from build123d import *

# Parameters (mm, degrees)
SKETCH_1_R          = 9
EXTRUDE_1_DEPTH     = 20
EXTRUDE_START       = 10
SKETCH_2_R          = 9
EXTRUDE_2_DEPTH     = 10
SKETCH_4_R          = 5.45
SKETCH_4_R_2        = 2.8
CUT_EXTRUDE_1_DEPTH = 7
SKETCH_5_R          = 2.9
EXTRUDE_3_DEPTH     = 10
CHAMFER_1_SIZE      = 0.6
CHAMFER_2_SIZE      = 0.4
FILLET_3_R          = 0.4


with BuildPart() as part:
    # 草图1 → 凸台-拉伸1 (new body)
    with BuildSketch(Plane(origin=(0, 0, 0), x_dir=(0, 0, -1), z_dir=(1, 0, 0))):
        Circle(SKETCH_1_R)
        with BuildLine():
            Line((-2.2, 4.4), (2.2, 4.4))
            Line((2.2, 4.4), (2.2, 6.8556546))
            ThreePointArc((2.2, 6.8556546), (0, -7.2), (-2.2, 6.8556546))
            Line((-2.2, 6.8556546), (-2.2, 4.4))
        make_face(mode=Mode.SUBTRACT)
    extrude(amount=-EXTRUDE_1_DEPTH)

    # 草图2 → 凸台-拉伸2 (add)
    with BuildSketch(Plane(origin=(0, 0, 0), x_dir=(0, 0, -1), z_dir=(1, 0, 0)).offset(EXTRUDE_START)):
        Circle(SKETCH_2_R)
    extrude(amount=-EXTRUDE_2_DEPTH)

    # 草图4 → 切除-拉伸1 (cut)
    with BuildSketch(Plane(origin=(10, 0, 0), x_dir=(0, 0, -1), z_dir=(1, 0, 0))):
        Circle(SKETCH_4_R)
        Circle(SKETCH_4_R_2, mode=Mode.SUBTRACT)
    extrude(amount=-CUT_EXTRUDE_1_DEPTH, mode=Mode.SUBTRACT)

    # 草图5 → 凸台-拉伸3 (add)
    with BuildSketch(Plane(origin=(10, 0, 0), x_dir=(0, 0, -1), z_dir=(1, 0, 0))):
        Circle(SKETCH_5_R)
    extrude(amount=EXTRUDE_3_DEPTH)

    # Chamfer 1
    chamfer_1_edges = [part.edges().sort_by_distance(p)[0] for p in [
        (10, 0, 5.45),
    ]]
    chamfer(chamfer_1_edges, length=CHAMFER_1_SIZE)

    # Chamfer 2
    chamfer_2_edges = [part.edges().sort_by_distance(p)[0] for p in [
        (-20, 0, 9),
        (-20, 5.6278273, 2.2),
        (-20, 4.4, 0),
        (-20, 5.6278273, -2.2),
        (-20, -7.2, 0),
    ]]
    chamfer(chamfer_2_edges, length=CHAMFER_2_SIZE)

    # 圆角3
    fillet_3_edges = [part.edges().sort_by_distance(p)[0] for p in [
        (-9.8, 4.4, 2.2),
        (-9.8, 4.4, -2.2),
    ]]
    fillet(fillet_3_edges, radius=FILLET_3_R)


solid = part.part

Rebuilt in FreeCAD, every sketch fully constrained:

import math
import FreeCAD as App
import Part
import Sketcher

V = App.Vector


def edges_at(feature, points):
    """Names of the edges that pass closest to the given points."""
    edges = feature.Shape.Edges
    near = lambda p: min(range(len(edges)), key=lambda i: edges[i].distToShape(Part.Vertex(*p))[0])
    return sorted({f"Edge{near(p) + 1}" for p in points})

doc = App.newDocument("Part")
params = doc.addObject("Spreadsheet::Sheet", "Params")
for row, (alias, value) in enumerate([
    ("sketch1_diameter", "18 mm"),
    ("sketch1_radius", "7.2 mm"),
    ("sketch1_height", "4.4 mm"),
    ("pad1_length", "20 mm"),
    ("sketch2_diameter", "18 mm"),
    ("pad2_length", "10 mm"),
    ("sketch3_diameter", "10.9 mm"),
    ("sketch3_diameter2", "5.6 mm"),
    ("pocket1_length", "7 mm"),
    ("sketch4_diameter", "5.8 mm"),
    ("pad3_length", "10 mm"),
    ("chamfer_size", "0.6 mm"),
    ("chamfer2_size", "0.4 mm"),
    ("fillet_radius", "0.4 mm"),
], start=1):
    params.set(f"A{row}", alias)
    params.set(f"B{row}", "=" + value)
    params.setAlias(f"B{row}", alias)

body = doc.addObject("PartDesign::Body", "Body")

# Sketch on YZ plane
sketch1 = body.newObject("Sketcher::SketchObject", "Sketch")
sketch1.AttachmentSupport = (doc.getObject("YZ_Plane"), [""])
sketch1.MapMode = "FlatFace"
sketch1.addGeometry([
    Part.Circle(V(0, 0, 0), V(0, 0, 1), 9),  # 0
    Part.LineSegment(V(6.855655, 2.2, 0), V(4.4, 2.2, 0)),  # 1
    Part.LineSegment(V(4.4, 2.2, 0), V(4.4, -2.2, 0)),  # 2
    Part.LineSegment(V(4.4, -2.2, 0), V(6.855655, -2.2, 0)),  # 3
    Part.ArcOfCircle(Part.Circle(V(0, 0, 0), V(0, 0, 1), 7.2), math.radians(17.791591), math.radians(342.208409)),  # 4
], False)
sketch1.addConstraint([
    Sketcher.Constraint("Coincident", 1, 2, 2, 1),
    Sketcher.Constraint("Coincident", 2, 2, 3, 1),
    Sketcher.Constraint("Coincident", 3, 2, 4, 2),
    Sketcher.Constraint("Coincident", 4, 1, 1, 1),
    Sketcher.Constraint("Horizontal", 1),
    Sketcher.Constraint("Vertical", 2),
    Sketcher.Constraint("Horizontal", 3),
    Sketcher.Constraint("Coincident", 0, 3, -1, 1),
    Sketcher.Constraint("Coincident", 4, 3, -1, 1),
    Sketcher.Constraint("Vertical", 3, 2, 4, 1),
    Sketcher.Constraint("Diameter", 0, 18.0),
    Sketcher.Constraint("Radius", 4, 7.2),
    Sketcher.Constraint("DistanceY", 2, 2, 2, 1, 4.4),
    Sketcher.Constraint("DistanceX", -1, 1, 1, 2, 4.4),
])
sketch1.setExpression("Constraints[10]", "Params.sketch1_diameter")
sketch1.setExpression("Constraints[11]", "Params.sketch1_radius")
sketch1.setExpression("Constraints[12]", "Params.sketch1_height")
pad1 = body.newObject("PartDesign::Pad", "Pad")
pad1.Profile = sketch1
pad1.setExpression("Length", "Params.pad1_length")
pad1.Reversed = True

# Sketch on YZ plane
sketch2 = body.newObject("Sketcher::SketchObject", "Sketch001")
sketch2.AttachmentSupport = (doc.getObject("YZ_Plane"), [""])
sketch2.MapMode = "FlatFace"
sketch2.AttachmentOffset = App.Placement(V(0, 0, 10), App.Rotation())
sketch2.addGeometry(Part.Circle(V(0, 0, 0), V(0, 0, 1), 9), False)
sketch2.addConstraint([
    Sketcher.Constraint("Coincident", 0, 3, -1, 1),
    Sketcher.Constraint("Diameter", 0, 18.0),
])
sketch2.setExpression("Constraints[1]", "Params.sketch2_diameter")
pad2 = body.newObject("PartDesign::Pad", "Pad001")
pad2.Profile = sketch2
pad2.setExpression("Length", "Params.pad2_length")
pad2.Reversed = True

# Sketch on YZ plane
sketch3 = body.newObject("Sketcher::SketchObject", "Sketch002")
sketch3.AttachmentSupport = (doc.getObject("YZ_Plane"), [""])
sketch3.MapMode = "FlatFace"
sketch3.AttachmentOffset = App.Placement(V(0, 0, 10), App.Rotation())
sketch3.addGeometry([
    Part.Circle(V(0, 0, 0), V(0, 0, 1), 5.45),
    Part.Circle(V(0, 0, 0), V(0, 0, 1), 2.8),
], False)
sketch3.addConstraint([
    Sketcher.Constraint("Coincident", 0, 3, -1, 1),
    Sketcher.Constraint("Coincident", 1, 3, -1, 1),
    Sketcher.Constraint("Diameter", 0, 10.9),
    Sketcher.Constraint("Diameter", 1, 5.6),
])
sketch3.setExpression("Constraints[2]", "Params.sketch3_diameter")
sketch3.setExpression("Constraints[3]", "Params.sketch3_diameter2")
pocket1 = body.newObject("PartDesign::Pocket", "Pocket")
pocket1.Profile = sketch3
pocket1.setExpression("Length", "Params.pocket1_length")

# Sketch on YZ plane
sketch4 = body.newObject("Sketcher::SketchObject", "Sketch003")
sketch4.AttachmentSupport = (doc.getObject("YZ_Plane"), [""])
sketch4.MapMode = "FlatFace"
sketch4.AttachmentOffset = App.Placement(V(0, 0, 10), App.Rotation())
sketch4.addGeometry(Part.Circle(V(0, 0, 0), V(0, 0, 1), 2.9), False)
sketch4.addConstraint([
    Sketcher.Constraint("Coincident", 0, 3, -1, 1),
    Sketcher.Constraint("Diameter", 0, 5.8),
])
sketch4.setExpression("Constraints[1]", "Params.sketch4_diameter")
pad3 = body.newObject("PartDesign::Pad", "Pad002")
pad3.Profile = sketch4
pad3.setExpression("Length", "Params.pad3_length")
doc.recompute()

chamfer = body.newObject("PartDesign::Chamfer", "Chamfer")
chamfer.Base = (pad3, edges_at(pad3, [(10, 0, 5.45)]))
chamfer.setExpression("Size", "Params.chamfer_size")
doc.recompute()

chamfer2 = body.newObject("PartDesign::Chamfer", "Chamfer001")
chamfer2.Base = (chamfer, edges_at(chamfer, [
    (-20, 0, 9),
    (-20, 5.628, 2.2),
    (-20, 4.4, 0),
    (-20, 5.628, -2.2),
    (-20, -7.2, 0),
]))
chamfer2.setExpression("Size", "Params.chamfer2_size")
doc.recompute()

fillet = body.newObject("PartDesign::Fillet", "Fillet")
fillet.Base = (chamfer2, edges_at(chamfer2, [(-9.8, 4.4, 2.2), (-9.8, 4.4, -2.2)]))
fillet.setExpression("Radius", "Params.fillet_radius")

doc.recompute()
